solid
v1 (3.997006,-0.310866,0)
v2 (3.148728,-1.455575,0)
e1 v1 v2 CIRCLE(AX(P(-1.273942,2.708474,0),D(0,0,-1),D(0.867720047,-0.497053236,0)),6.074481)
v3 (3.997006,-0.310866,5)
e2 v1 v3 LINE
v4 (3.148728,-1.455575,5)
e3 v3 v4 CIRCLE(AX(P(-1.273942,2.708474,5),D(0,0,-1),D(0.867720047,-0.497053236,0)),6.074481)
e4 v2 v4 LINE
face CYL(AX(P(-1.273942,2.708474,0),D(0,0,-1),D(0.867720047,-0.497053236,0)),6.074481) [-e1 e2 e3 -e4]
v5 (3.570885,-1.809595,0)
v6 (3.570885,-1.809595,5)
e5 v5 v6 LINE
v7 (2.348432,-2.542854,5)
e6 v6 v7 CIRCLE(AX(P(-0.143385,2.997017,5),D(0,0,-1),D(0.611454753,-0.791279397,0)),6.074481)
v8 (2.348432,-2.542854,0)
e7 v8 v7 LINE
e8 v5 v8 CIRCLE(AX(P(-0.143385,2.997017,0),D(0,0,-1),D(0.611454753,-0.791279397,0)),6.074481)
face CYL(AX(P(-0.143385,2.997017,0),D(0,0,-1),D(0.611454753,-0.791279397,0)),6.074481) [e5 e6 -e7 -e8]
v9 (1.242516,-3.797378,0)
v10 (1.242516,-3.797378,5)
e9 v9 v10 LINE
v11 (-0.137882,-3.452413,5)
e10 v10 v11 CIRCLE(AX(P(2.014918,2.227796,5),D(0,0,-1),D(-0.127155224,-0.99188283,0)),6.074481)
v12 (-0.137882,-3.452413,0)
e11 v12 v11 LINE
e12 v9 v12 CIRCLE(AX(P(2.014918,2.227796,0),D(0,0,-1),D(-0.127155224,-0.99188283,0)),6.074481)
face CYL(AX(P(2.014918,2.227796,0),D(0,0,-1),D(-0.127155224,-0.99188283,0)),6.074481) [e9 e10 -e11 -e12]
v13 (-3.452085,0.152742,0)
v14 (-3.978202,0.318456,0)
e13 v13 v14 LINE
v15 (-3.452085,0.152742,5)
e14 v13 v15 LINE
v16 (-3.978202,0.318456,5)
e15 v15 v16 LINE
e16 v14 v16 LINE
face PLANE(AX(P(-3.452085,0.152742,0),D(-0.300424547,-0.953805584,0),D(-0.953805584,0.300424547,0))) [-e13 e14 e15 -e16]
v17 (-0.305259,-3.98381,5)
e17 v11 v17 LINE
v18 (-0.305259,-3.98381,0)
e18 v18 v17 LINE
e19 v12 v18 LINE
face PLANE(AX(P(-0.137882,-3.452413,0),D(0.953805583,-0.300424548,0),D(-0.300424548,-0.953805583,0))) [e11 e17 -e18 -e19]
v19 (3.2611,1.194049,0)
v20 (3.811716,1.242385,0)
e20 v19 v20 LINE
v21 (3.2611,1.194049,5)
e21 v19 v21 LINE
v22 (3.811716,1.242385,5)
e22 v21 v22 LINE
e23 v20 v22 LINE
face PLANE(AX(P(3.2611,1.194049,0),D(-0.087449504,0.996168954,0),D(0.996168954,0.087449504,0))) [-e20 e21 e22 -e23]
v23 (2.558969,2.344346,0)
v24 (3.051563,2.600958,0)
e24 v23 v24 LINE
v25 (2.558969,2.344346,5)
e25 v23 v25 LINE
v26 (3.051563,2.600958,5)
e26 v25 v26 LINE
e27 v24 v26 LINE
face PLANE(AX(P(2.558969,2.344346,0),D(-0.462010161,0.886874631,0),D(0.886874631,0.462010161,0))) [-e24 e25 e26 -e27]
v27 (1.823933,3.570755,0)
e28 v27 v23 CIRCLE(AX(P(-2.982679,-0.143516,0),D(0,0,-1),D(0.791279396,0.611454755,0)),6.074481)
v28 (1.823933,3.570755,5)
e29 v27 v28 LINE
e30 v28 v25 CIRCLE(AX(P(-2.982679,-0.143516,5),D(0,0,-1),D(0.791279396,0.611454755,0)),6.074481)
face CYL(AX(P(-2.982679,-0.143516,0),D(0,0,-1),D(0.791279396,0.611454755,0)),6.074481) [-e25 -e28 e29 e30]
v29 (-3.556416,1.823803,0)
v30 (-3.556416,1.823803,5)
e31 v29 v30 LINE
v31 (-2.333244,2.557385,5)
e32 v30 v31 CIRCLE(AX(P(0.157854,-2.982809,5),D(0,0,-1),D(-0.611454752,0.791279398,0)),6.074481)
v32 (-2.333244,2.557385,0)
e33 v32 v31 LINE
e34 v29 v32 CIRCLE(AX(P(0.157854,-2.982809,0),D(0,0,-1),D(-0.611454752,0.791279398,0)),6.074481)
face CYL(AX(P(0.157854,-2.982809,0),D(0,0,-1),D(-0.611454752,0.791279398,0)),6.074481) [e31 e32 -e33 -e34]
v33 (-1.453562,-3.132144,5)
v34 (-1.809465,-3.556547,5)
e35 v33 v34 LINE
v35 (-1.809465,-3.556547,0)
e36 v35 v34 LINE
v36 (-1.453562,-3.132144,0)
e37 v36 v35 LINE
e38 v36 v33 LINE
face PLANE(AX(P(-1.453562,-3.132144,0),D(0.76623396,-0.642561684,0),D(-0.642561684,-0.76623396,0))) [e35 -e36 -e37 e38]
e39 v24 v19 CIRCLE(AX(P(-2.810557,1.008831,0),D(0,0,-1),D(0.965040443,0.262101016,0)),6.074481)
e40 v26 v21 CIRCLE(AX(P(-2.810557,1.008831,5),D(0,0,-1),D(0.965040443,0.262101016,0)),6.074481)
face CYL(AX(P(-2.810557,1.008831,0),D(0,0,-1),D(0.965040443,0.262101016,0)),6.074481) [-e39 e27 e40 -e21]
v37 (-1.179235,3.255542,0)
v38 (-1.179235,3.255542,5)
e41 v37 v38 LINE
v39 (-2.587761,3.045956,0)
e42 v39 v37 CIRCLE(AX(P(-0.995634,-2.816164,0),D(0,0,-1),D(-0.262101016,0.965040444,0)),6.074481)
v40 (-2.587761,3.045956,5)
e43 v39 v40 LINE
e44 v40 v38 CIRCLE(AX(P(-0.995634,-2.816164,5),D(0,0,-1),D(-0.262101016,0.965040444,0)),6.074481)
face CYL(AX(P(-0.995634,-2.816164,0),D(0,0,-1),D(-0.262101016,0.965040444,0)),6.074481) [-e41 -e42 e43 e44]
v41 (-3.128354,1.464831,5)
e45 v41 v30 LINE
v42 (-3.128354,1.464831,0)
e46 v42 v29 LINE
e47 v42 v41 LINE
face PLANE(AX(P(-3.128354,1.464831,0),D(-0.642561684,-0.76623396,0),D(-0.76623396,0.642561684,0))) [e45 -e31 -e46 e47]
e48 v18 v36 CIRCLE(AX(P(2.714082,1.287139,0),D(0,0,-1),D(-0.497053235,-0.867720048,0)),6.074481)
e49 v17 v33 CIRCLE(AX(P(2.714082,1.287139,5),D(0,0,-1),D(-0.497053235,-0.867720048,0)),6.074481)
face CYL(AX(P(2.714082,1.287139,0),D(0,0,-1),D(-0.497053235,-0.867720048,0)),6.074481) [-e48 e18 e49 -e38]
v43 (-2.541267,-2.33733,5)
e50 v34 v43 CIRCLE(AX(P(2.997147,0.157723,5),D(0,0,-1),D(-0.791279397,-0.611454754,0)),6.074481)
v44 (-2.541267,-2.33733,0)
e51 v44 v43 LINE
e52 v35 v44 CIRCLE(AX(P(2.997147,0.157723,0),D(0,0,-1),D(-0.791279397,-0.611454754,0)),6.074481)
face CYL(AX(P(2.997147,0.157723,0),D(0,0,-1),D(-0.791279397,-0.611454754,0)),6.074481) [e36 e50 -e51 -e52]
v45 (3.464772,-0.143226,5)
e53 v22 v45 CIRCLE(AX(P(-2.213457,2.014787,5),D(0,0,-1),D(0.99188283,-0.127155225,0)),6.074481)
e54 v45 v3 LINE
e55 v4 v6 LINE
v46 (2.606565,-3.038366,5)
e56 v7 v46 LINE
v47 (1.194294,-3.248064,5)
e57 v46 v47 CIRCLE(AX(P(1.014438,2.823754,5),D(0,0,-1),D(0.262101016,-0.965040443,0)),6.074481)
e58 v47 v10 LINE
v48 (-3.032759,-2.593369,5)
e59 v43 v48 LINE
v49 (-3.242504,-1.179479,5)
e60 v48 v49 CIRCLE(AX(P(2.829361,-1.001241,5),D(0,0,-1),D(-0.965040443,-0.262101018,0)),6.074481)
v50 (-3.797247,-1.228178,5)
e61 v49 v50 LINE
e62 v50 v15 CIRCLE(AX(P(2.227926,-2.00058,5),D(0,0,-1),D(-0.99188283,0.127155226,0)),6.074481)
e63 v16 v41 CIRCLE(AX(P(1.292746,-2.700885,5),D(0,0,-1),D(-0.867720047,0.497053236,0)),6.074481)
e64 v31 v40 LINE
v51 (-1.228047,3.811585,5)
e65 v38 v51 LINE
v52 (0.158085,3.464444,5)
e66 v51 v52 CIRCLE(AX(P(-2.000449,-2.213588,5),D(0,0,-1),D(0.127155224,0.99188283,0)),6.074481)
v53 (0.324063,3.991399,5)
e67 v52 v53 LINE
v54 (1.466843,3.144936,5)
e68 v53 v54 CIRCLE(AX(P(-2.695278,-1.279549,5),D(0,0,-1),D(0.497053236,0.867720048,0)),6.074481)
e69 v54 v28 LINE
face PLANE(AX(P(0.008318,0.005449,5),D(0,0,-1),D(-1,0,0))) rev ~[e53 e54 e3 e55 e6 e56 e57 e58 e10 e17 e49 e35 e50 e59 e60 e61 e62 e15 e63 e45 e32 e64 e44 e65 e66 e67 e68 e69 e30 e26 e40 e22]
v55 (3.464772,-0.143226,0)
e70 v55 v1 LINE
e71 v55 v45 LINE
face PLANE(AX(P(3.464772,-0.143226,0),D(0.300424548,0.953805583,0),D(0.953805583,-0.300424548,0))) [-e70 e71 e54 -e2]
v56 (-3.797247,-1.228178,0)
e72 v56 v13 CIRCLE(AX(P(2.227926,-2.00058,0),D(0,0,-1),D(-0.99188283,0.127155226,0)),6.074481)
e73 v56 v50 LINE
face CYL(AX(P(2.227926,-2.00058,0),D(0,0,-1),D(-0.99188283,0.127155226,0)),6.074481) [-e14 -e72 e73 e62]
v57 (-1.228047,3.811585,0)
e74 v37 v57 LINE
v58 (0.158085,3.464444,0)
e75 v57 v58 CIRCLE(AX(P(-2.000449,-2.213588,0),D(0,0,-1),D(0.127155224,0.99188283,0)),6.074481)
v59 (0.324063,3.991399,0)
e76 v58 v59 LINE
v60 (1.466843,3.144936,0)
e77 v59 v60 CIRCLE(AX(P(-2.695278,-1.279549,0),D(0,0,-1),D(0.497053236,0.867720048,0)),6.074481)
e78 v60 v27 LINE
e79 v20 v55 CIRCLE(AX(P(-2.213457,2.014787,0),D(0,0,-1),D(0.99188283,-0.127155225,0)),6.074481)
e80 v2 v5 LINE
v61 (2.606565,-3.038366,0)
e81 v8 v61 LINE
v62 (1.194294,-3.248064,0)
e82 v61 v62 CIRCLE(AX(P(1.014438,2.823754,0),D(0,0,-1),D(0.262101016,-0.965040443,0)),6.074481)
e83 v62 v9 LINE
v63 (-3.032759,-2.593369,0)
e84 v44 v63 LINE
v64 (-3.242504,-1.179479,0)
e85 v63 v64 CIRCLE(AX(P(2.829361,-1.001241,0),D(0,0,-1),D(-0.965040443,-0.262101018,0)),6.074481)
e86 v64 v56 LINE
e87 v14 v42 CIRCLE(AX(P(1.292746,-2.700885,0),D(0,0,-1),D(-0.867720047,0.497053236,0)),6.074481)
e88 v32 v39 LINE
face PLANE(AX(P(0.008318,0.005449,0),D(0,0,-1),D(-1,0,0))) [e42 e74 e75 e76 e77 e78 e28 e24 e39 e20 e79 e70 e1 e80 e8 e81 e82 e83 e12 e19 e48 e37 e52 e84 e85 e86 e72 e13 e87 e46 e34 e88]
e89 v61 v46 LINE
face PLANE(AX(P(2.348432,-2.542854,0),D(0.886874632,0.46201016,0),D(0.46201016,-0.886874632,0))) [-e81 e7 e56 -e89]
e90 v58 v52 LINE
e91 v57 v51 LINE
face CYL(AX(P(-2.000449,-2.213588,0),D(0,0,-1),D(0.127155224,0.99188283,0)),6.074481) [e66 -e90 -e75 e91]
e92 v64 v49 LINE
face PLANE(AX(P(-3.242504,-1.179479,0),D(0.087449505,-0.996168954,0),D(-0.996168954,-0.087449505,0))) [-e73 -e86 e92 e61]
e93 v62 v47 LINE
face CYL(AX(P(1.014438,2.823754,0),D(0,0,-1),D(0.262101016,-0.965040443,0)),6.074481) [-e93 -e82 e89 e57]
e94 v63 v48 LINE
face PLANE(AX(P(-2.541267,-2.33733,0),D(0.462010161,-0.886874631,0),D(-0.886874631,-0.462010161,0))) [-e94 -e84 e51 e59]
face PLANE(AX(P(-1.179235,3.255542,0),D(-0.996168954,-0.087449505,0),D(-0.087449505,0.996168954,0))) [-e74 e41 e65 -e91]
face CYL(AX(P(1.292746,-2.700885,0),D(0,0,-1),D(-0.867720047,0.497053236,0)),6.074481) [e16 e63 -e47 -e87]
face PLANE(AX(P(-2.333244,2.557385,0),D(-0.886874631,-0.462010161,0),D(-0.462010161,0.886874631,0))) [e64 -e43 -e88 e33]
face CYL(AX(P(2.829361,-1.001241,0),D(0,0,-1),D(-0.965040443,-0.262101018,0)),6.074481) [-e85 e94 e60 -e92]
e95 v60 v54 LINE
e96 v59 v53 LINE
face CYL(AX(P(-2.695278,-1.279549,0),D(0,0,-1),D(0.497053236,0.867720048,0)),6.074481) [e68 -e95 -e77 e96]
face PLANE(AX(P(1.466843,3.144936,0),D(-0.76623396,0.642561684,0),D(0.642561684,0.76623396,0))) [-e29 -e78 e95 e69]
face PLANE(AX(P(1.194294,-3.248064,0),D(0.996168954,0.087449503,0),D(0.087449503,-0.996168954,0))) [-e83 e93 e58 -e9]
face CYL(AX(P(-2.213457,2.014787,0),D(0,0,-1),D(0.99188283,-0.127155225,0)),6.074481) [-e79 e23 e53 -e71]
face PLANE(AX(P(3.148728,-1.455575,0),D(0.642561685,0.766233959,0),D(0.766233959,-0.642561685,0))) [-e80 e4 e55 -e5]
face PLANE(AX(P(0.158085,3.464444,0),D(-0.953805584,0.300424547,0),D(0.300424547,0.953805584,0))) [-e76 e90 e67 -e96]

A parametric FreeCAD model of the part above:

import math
import FreeCAD as App
import Part
import Sketcher
from FreeCAD import Vector

doc = App.newDocument("Part")
params = doc.addObject("Spreadsheet::Sheet", "Params")
for row, (alias, value) in enumerate([
    ("pad1_length", "5 mm"),
], start=1):
    params.set(f"A{row}", alias)
    params.set(f"B{row}", "=" + value)
    params.setAlias(f"B{row}", alias)

body = doc.addObject("PartDesign::Body", "Body")

# Sketch on XY plane
sketch1 = doc.addObject("Sketcher::SketchObject", "Sketch")
body.addObject(sketch1)
sketch1.AttachmentSupport = (doc.XY_Plane, [""])
sketch1.MapMode = "FlatFace"
sketch1.addGeometry([
    Part.LineSegment(Vector(3.8, 1.2, 0), Vector(3.3, 1.2, 0)),  # 0
    Part.ArcOfCircle(Part.Circle(Vector(-2.8, 1, 0), Vector(0, 0, 1), 6.1), math.radians(1.75), math.radians(15.19)),  # 1
    Part.LineSegment(Vector(3.1, 2.6, 0), Vector(2.6, 2.3, 0)),  # 2
    Part.ArcOfCircle(Part.Circle(Vector(-3, -0.1, 0), Vector(0, 0, 1), 6.1), math.radians(24.18), math.radians(37.69)),  # 3
    Part.LineSegment(Vector(1.8, 3.6, 0), Vector(1.5, 3.1, 0)),  # 4
    Part.ArcOfCircle(Part.Circle(Vector(-2.7, -1.3, 0), Vector(0, 0, 1), 6.1), math.radians(46.75), math.radians(60.19)),  # 5
    Part.LineSegment(Vector(0.3, 4, 0), Vector(0.2, 3.5, 0)),  # 6
    Part.ArcOfCircle(Part.Circle(Vector(-2, -2.2, 0), Vector(0, 0, 1), 6.1), math.radians(69.19), math.radians(82.69)),  # 7
    Part.LineSegment(Vector(-1.2, 3.8, 0), Vector(-1.2, 3.3, 0)),  # 8
    Part.ArcOfCircle(Part.Circle(Vector(-1, -2.8, 0), Vector(0, 0, 1), 6.1), math.radians(91.73), math.radians(105.19)),  # 9
    Part.LineSegment(Vector(-2.6, 3, 0), Vector(-2.3, 2.6, 0)),  # 10
    Part.ArcOfCircle(Part.Circle(Vector(0.2, -3, 0), Vector(0, 0, 1), 6.1), math.radians(114.21), math.radians(127.69)),  # 11
    Part.LineSegment(Vector(-3.6, 1.8, 0), Vector(-3.1, 1.5, 0)),  # 12
    Part.ArcOfCircle(Part.Circle(Vector(1.3, -2.7, 0), Vector(0, 0, 1), 6.1), math.radians(136.7), math.radians(150.19)),  # 13
    Part.LineSegment(Vector(-4, 0.3, 0), Vector(-3.5, 0.2, 0)),  # 14
    Part.ArcOfCircle(Part.Circle(Vector(2.2, -2, 0), Vector(0, 0, 1), 6.1), math.radians(159.24), math.radians(172.69)),  # 15
    Part.LineSegment(Vector(-3.8, -1.2, 0), Vector(-3.2, -1.2, 0)),  # 16
    Part.ArcOfCircle(Part.Circle(Vector(2.8, -1, 0), Vector(0, 0, 1), 6.1), math.radians(-178.32), math.radians(-164.81)),  # 17
    Part.LineSegment(Vector(-3, -2.6, 0), Vector(-2.5, -2.3, 0)),  # 18
    Part.ArcOfCircle(Part.Circle(Vector(3, 0.2, 0), Vector(0, 0, 1), 6.1), math.radians(-155.75), math.radians(-142.31)),  # 19
    Part.LineSegment(Vector(-1.8, -3.6, 0), Vector(-1.5, -3.1, 0)),  # 20
    Part.ArcOfCircle(Part.Circle(Vector(2.7, 1.3, 0), Vector(0, 0, 1), 6.1), math.radians(-133.32), math.radians(-119.81)),  # 21
    Part.LineSegment(Vector(-0.3, -4, 0), Vector(-0.1, -3.5, 0)),  # 22
    Part.ArcOfCircle(Part.Circle(Vector(2, 2.2, 0), Vector(0, 0, 1), 6.1), math.radians(-110.76), math.radians(-97.31)),  # 23
    Part.LineSegment(Vector(1.2, -3.8, 0), Vector(1.2, -3.2, 0)),  # 24
    Part.ArcOfCircle(Part.Circle(Vector(1, 2.8, 0), Vector(0, 0, 1), 6.1), math.radians(-88.3), math.radians(-74.81)),  # 25
    Part.LineSegment(Vector(2.6, -3, 0), Vector(2.3, -2.5, 0)),  # 26
    Part.ArcOfCircle(Part.Circle(Vector(-0.1, 3, 0), Vector(0, 0, 1), 6.1), math.radians(-65.78), math.radians(-52.31)),  # 27
    Part.LineSegment(Vector(3.6, -1.8, 0), Vector(3.1, -1.5, 0)),  # 28
    Part.ArcOfCircle(Part.Circle(Vector(-1.3, 2.7, 0), Vector(0, 0, 1), 6.1), math.radians(-43.27), math.radians(-29.81)),  # 29
    Part.LineSegment(Vector(4, -0.3, 0), Vector(3.5, -0.1, 0)),  # 30
    Part.ArcOfCircle(Part.Circle(Vector(-2.2, 2, 0), Vector(0, 0, 1), 6.1), math.radians(-20.81), math.radians(-7.31)),  # 31
], False)
sketch1.addConstraint([
    Sketcher.Constraint("Coincident", 0, 2, 1, 1),
    Sketcher.Constraint("Coincident", 1, 2, 2, 1),
    Sketcher.Constraint("Coincident", 2, 2, 3, 1),
    Sketcher.Constraint("Coincident", 3, 2, 4, 1),
    Sketcher.Constraint("Coincident", 4, 2, 5, 1),
    Sketcher.Constraint("Coincident", 5, 2, 6, 1),
    Sketcher.Constraint("Coincident", 6, 2, 7, 1),
    Sketcher.Constraint("Coincident", 7, 2, 8, 1),
    Sketcher.Constraint("Coincident", 8, 2, 9, 1),
    Sketcher.Constraint("Coincident", 9, 2, 10, 1),
    Sketcher.Constraint("Coincident", 10, 2, 11, 1),
    Sketcher.Constraint("Coincident", 11, 2, 12, 1),
    Sketcher.Constraint("Coincident", 12, 2, 13, 1),
    Sketcher.Constraint("Coincident", 13, 2, 14, 1),
    Sketcher.Constraint("Coincident", 14, 2, 15, 1),
    Sketcher.Constraint("Coincident", 15, 2, 16, 1),
    Sketcher.Constraint("Coincident", 16, 2, 17, 1),
    Sketcher.Constraint("Coincident", 17, 2, 18, 1),
    Sketcher.Constraint("Coincident", 18, 2, 19, 1),
    Sketcher.Constraint("Coincident", 19, 2, 20, 1),
    Sketcher.Constraint("Coincident", 20, 2, 21, 1),
    Sketcher.Constraint("Coincident", 21, 2, 22, 1),
    Sketcher.Constraint("Coincident", 22, 2, 23, 1),
    Sketcher.Constraint("Coincident", 23, 2, 24, 1),
    Sketcher.Constraint("Coincident", 24, 2, 25, 1),
    Sketcher.Constraint("Coincident", 25, 2, 26, 1),
    Sketcher.Constraint("Coincident", 26, 2, 27, 1),
    Sketcher.Constraint("Coincident", 27, 2, 28, 1),
    Sketcher.Constraint("Coincident", 28, 2, 29, 1),
    Sketcher.Constraint("Coincident", 29, 2, 30, 1),
    Sketcher.Constraint("Coincident", 30, 2, 31, 1),
    Sketcher.Constraint("Coincident", 31, 2, 0, 1),
    Sketcher.Constraint("Equal", 1, 3),
    Sketcher.Constraint("Equal", 3, 5),
    Sketcher.Constraint("Equal", 5, 7),
    Sketcher.Constraint("Equal", 7, 9),
    Sketcher.Constraint("Equal", 9, 11),
    Sketcher.Constraint("Equal", 11, 13),
    Sketcher.Constraint("Equal", 13, 15),
    Sketcher.Constraint("Equal", 15, 17),
    Sketcher.Constraint("Equal", 17, 19),
    Sketcher.Constraint("Equal", 19, 21),
    Sketcher.Constraint("Equal", 21, 23),
    Sketcher.Constraint("Equal", 23, 25),
    Sketcher.Constraint("Equal", 25, 27),
    Sketcher.Constraint("Equal", 27, 29),
    Sketcher.Constraint("Equal", 29, 31),
    Sketcher.Constraint("Perpendicular", 0, 8),
    Sketcher.Constraint("Perpendicular", 2, 10),
    Sketcher.Constraint("Perpendicular", 4, 12),
    Sketcher.Constraint("Perpendicular", 6, 14),
    Sketcher.Constraint("Perpendicular", 8, 16),
    Sketcher.Constraint("Perpendicular", 10, 18),
    Sketcher.Constraint("Perpendicular", 12, 20),
    Sketcher.Constraint("Perpendicular", 14, 22),
    Sketcher.Constraint("Perpendicular", 16, 24),
    Sketcher.Constraint("Perpendicular", 18, 26),
    Sketcher.Constraint("Perpendicular", 20, 28),
    Sketcher.Constraint("Perpendicular", 22, 30),
    Sketcher.Constraint("Radius", 1, 6.074481),
    Sketcher.Constraint("DistanceY", 25, 3, 3, 2, 0.747001),
    Sketcher.Constraint("DistanceY", 1, 3, 12, 2, 0.456),
    Sketcher.Constraint("DistanceY", 21, 2, 11, 3, 1.001001),
    Sketcher.Constraint("Distance", 14, 0.551598),
    Sketcher.Constraint("DistanceX", -1, 1, 0, 2, 3.2611),
    Sketcher.Constraint("DistanceY", -1, 1, 5, 2, 3.991399),
    Sketcher.Constraint("DistanceX", 3, 3, 5, 3, 0.287401),
    Sketcher.Constraint("DistanceX", 13, 3, 19, 3, 1.7044),
    Sketcher.Constraint("DistanceX", 1, 3, 31, 3, 0.597099),
    Sketcher.Constraint("DistanceY", 31, 3, 7, 2, 1.796798),
    Sketcher.Constraint("DistanceX", 15, 2, 7, 3, 1.796798),
    Sketcher.Constraint("DistanceY", 15, 2, 16, 2, 0.048699),
    Sketcher.Constraint("DistanceY", 23, 2, 15, 3, 1.796798),
    Sketcher.Constraint("DistanceX", 15, 3, 28, 2, 0.920802),
    Sketcher.Constraint("DistanceY", 28, 2, 19, 3, 1.613298),
    Sketcher.Constraint("Distance", 4, 0.555729),
    Sketcher.Constraint("Distance", 10, 0.55089),
    Sketcher.Constraint("Distance", 20, 0.553881),
    Sketcher.Constraint("Distance", 28, 0.550951),
    Sketcher.Constraint("Distance", 30, 0.558011),
    Sketcher.Constraint("DistanceY", -1, 1, 1, 3, 1.008831),
    Sketcher.Constraint("DistanceX", 3, 3, -1, 1, 2.982679),
    Sketcher.Constraint("DistanceY", 5, 3, -1, 1, 1.279549),
    Sketcher.Constraint("DistanceX", 7, 3, -1, 1, 2.000449),
    Sketcher.Constraint("DistanceY", 11, 3, -1, 1, 2.982809),
    Sketcher.Constraint("DistanceY", 15, 3, -1, 1, 2.00058),
    Sketcher.Constraint("DistanceX", -1, 1, 17, 3, 2.829361),
    Sketcher.Constraint("DistanceY", 17, 3, -1, 1, 1.001241),
    Sketcher.Constraint("DistanceX", -1, 1, 21, 3, 2.714082),
    Sketcher.Constraint("DistanceY", -1, 1, 21, 3, 1.287139),
    Sketcher.Constraint("DistanceY", -1, 1, 0, 2, 1.194049),
    Sketcher.Constraint("DistanceY", -1, 1, 1, 2, 2.600958),
    Sketcher.Constraint("DistanceX", -1, 1, 2, 2, 2.558969),
    Sketcher.Constraint("DistanceY", -1, 1, 8, 2, 3.255542),
    Sketcher.Constraint("DistanceX", 9, 2, -1, 1, 2.587761),
    Sketcher.Constraint("DistanceY", -1, 1, 14, 2, 0.152742),
    Sketcher.Constraint("DistanceY", 16, 2, -1, 1, 1.179479),
    Sketcher.Constraint("DistanceX", 17, 2, -1, 1, 3.032759),
    Sketcher.Constraint("DistanceY", 18, 2, -1, 1, 2.33733),
    Sketcher.Constraint("DistanceX", 20, 2, -1, 1, 1.453562),
    Sketcher.Constraint("DistanceY", 7, 3, 5, 3, 0.934038),
    Sketcher.Constraint("DistanceY", 9, 3, 3, 3, 2.672648),
    Sketcher.Constraint("DistanceX", 5, 3, 11, 3, 2.853131),
    Sketcher.Constraint("DistanceX", 9, 3, 13, 3, 2.28838),
    Sketcher.Constraint("DistanceY", 9, 3, 13, 3, 0.115279),
    Sketcher.Constraint("DistanceX", 13, 3, 15, 3, 0.935179),
    Sketcher.Constraint("DistanceX", 23, 3, 19, 3, 0.982229),
    Sketcher.Constraint("DistanceX", 25, 3, 23, 3, 1.00048),
    Sketcher.Constraint("DistanceY", 23, 3, 25, 3, 0.595958),
    Sketcher.Constraint("DistanceY", 23, 3, 27, 3, 0.769221),
    Sketcher.Constraint("DistanceX", 29, 3, 25, 3, 2.28838),
    Sketcher.Constraint("DistanceX", 15, 3, 25, 2, 0.37864),
])
pad1 = doc.addObject("PartDesign::Pad", "Pad")
body.addObject(pad1)
pad1.Profile = sketch1
pad1.setExpression("Length", "Params.pad1_length")

doc.recompute()
